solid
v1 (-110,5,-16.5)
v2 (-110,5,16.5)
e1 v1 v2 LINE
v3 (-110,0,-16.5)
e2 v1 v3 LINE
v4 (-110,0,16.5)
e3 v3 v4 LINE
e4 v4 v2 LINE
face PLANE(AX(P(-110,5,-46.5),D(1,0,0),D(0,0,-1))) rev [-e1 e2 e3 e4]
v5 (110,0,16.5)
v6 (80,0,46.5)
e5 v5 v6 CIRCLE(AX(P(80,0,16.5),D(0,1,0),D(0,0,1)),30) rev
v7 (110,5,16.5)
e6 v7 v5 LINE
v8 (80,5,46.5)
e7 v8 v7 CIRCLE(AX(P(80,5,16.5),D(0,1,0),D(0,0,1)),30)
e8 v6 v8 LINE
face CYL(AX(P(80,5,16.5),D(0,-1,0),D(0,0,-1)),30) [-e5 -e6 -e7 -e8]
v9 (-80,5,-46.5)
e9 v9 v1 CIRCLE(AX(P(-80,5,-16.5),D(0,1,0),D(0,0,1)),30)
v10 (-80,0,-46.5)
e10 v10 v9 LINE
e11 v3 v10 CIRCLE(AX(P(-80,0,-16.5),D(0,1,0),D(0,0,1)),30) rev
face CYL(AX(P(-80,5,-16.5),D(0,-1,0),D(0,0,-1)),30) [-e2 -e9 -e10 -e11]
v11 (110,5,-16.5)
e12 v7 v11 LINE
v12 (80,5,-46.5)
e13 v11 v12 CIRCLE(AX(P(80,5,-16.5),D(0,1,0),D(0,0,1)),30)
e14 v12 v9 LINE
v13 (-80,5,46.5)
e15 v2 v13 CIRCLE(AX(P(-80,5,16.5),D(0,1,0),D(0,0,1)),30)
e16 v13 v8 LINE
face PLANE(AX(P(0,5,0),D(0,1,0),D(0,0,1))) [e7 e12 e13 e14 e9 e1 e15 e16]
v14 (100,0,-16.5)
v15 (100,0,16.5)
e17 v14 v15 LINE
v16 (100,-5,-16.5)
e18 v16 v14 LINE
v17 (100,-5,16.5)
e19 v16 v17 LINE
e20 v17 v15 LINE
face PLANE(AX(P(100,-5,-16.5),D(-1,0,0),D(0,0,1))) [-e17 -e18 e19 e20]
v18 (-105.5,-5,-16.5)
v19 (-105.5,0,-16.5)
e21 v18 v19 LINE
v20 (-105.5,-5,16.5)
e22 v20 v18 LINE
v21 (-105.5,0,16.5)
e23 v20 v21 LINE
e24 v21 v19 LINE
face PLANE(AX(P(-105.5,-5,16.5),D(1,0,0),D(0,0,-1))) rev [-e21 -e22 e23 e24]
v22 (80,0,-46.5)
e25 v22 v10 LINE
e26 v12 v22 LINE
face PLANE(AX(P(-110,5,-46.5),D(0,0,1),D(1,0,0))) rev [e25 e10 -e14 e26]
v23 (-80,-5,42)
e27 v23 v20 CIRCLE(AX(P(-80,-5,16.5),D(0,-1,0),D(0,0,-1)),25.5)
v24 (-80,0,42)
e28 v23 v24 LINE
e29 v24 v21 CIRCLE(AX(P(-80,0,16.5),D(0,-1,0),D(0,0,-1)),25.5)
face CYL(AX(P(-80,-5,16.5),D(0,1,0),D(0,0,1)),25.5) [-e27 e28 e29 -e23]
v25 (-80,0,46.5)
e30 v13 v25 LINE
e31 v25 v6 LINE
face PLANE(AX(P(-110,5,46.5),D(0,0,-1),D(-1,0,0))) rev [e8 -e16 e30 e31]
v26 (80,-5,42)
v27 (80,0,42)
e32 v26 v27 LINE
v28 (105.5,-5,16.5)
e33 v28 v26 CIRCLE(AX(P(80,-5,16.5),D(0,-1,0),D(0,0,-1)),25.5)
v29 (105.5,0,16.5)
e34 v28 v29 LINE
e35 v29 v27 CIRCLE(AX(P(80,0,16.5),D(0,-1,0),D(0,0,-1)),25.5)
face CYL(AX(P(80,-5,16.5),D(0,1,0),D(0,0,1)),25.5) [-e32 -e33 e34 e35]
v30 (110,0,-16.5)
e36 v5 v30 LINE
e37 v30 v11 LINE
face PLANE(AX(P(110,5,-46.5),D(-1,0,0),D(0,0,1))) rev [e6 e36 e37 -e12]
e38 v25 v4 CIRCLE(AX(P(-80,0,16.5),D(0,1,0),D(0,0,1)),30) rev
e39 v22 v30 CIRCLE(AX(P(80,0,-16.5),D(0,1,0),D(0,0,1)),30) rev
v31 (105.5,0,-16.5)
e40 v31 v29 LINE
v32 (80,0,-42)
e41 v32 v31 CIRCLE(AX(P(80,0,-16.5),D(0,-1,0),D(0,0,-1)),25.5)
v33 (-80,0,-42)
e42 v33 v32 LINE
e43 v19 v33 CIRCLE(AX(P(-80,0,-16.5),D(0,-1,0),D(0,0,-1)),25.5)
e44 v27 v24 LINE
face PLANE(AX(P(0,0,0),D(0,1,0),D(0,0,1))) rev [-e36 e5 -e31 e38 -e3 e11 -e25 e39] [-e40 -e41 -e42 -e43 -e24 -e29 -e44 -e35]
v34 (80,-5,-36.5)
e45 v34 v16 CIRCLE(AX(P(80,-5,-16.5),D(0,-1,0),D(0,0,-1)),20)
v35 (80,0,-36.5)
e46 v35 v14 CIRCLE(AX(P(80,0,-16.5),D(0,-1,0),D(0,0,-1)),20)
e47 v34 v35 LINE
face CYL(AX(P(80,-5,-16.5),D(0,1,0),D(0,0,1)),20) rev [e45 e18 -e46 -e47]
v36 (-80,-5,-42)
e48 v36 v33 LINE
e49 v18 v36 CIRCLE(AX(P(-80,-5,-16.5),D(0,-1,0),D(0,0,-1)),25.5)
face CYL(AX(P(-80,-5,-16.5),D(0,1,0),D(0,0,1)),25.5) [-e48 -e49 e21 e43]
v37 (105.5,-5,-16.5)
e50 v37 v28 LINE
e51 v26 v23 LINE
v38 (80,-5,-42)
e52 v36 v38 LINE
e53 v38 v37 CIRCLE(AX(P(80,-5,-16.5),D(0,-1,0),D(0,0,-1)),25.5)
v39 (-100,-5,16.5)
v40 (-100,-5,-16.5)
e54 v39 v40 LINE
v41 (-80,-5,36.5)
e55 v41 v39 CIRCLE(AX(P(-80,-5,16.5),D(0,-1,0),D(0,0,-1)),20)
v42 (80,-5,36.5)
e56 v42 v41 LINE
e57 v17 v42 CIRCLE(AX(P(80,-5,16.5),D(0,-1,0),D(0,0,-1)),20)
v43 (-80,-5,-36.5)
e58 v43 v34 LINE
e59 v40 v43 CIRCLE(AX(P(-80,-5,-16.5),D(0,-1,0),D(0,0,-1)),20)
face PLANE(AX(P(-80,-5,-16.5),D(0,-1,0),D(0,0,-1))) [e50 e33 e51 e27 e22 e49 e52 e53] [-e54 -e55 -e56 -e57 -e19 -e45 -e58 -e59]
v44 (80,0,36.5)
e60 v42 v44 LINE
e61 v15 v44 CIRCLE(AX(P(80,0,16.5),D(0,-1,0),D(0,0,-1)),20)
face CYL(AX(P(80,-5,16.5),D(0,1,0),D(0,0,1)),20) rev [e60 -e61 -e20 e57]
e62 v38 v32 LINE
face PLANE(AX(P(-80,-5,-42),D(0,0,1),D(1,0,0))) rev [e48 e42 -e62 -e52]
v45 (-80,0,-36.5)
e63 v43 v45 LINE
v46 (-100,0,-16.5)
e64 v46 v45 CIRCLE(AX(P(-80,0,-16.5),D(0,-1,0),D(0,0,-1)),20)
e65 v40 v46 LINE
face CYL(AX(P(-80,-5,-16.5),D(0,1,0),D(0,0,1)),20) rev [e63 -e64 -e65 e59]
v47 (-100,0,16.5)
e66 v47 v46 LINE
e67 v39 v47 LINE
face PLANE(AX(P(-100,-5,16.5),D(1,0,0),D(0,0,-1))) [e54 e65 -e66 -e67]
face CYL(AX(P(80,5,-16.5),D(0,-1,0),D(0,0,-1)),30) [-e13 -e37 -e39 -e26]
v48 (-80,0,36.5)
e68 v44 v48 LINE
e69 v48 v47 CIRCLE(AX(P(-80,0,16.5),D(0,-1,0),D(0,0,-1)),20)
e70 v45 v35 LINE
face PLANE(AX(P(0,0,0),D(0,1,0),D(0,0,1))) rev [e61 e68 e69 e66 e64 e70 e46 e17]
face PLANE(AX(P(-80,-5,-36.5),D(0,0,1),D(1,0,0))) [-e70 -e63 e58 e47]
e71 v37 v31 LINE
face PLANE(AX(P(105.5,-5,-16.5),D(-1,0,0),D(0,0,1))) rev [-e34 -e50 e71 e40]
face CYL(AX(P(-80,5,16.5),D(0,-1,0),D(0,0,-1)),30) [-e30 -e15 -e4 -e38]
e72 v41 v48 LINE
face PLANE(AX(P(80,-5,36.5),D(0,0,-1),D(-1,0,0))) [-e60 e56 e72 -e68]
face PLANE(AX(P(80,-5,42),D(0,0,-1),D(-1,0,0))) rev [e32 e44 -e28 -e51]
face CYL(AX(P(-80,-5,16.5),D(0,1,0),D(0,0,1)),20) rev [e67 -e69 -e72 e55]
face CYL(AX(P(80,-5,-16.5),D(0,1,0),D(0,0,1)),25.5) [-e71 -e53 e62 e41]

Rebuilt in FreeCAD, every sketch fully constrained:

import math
import FreeCAD as App
import Part
import Sketcher
Q = App.Units.Quantity


def edges_at(feature, points):
    """Names of the edges that pass closest to the given points."""
    edges = feature.Shape.Edges
    near = lambda p: min(range(len(edges)), key=lambda i: edges[i].distToShape(Part.Vertex(*p))[0])
    return sorted({f"Edge{near(p) + 1}" for p in points})


def add_polygon(sketch, points):
    """Adds a closed chain of lines whose ends are joined by coincident constraints."""
    first, n = sketch.GeometryCount, len(points)
    for a, b in zip(points, points[1:] + points[:1]):
        sketch.addGeometry(Part.LineSegment(App.Vector(*a, 0), App.Vector(*b, 0)), False)
    for i in range(n):
        sketch.addConstraint(Sketcher.Constraint("Coincident", first + i, 2, first + (i + 1) % n, 1))

doc = App.newDocument("Part")
body = doc.addObject("PartDesign::Body", "Body")

sketch1 = doc.addObject("Sketcher::SketchObject", "Sketch")
body.addObject(sketch1)
sketch1.AttachmentSupport = (doc.XZ_Plane, [""])
sketch1.MapMode = "FlatFace"
add_polygon(sketch1, [(-110, -46), (-110, 46), (110, 46), (110, -46)])
sketch1.addConstraint(Sketcher.Constraint("Vertical", 0))
sketch1.addConstraint(Sketcher.Constraint("Horizontal", 1))
sketch1.addConstraint(Sketcher.Constraint("Vertical", 2))
sketch1.addConstraint(Sketcher.Constraint("Horizontal", 3))
sketch1.addConstraint(Sketcher.Constraint("Symmetric", 0, 2, 2, 2, -1, 1))
sketch1.addConstraint(Sketcher.Constraint("DistanceX", 1, 1, 1, 2, Q("220 mm")))
sketch1.addConstraint(Sketcher.Constraint("DistanceY", 0, 1, 0, 2, Q("93 mm")))
pad1 = doc.addObject("PartDesign::Pad", "Pad")
body.addObject(pad1)
pad1.Profile = sketch1
pad1.Length = 5
pad1.Reversed = True
doc.recompute()

fillet = doc.addObject("PartDesign::Fillet", "Fillet")
body.addObject(fillet)
fillet.Base = (pad1, edges_at(pad1, [
    (110, 2.5, 46.5),
    (-110, 2.5, 46.5),
    (-110, 2.5, -46.5),
    (110, 2.5, -46.5),
]))
fillet.Radius = 30

sketch2 = doc.addObject("Sketcher::SketchObject", "Sketch001")
body.addObject(sketch2)
sketch2.AttachmentSupport = (doc.XZ_Plane, [""])
sketch2.MapMode = "FlatFace"
sketch2.addGeometry(Part.LineSegment(App.Vector(-80, -42, 0), App.Vector(80, -42, 0)), False)
sketch2.addGeometry(Part.ArcOfCircle(Part.Circle(App.Vector(80, -16, 0), App.Vector(0, 0, 1), 26), math.radians(-90), math.radians(0)), False)
sketch2.addGeometry(Part.LineSegment(App.Vector(106, -16, 0), App.Vector(106, 16, 0)), False)
sketch2.addGeometry(Part.ArcOfCircle(Part.Circle(App.Vector(80, 16, 0), App.Vector(0, 0, 1), 26), math.radians(0), math.radians(90)), False)
sketch2.addGeometry(Part.LineSegment(App.Vector(80, 42, 0), App.Vector(-80, 42, 0)), False)
sketch2.addGeometry(Part.ArcOfCircle(Part.Circle(App.Vector(-80, 16, 0), App.Vector(0, 0, 1), 26), math.radians(90), math.radians(180)), False)
sketch2.addGeometry(Part.LineSegment(App.Vector(-106, 16, 0), App.Vector(-106, -16, 0)), False)
sketch2.addGeometry(Part.ArcOfCircle(Part.Circle(App.Vector(-80, -16, 0), App.Vector(0, 0, 1), 26), math.radians(-180), math.radians(-90)), False)
sketch2.addGeometry(Part.LineSegment(App.Vector(80, -36, 0), App.Vector(-80, -36, 0)), False)
sketch2.addGeometry(Part.ArcOfCircle(Part.Circle(App.Vector(-80, -17, 0), App.Vector(0, 0, 1), 20), math.radians(180), math.radians(270)), False)
sketch2.addGeometry(Part.LineSegment(App.Vector(-100, -16, 0), App.Vector(-100, 16, 0)), False)
sketch2.addGeometry(Part.ArcOfCircle(Part.Circle(App.Vector(-80, 17, 0), App.Vector(0, 0, 1), 20), math.radians(90), math.radians(180)), False)
sketch2.addGeometry(Part.LineSegment(App.Vector(-80, 36, 0), App.Vector(80, 36, 0)), False)
sketch2.addGeometry(Part.ArcOfCircle(Part.Circle(App.Vector(80, 17, 0), App.Vector(0, 0, 1), 20), math.radians(0), math.radians(90)), False)
sketch2.addGeometry(Part.LineSegment(App.Vector(100, 16, 0), App.Vector(100, -16, 0)), False)
sketch2.addGeometry(Part.ArcOfCircle(Part.Circle(App.Vector(80, -17, 0), App.Vector(0, 0, 1), 20), math.radians(-90), math.radians(0)), False)
sketch2.addConstraint(Sketcher.Constraint("Tangent", 0, 2, 1, 1))
sketch2.addConstraint(Sketcher.Constraint("Tangent", 1, 2, 2, 1))
sketch2.addConstraint(Sketcher.Constraint("Tangent", 2, 2, 3, 1))
sketch2.addConstraint(Sketcher.Constraint("Tangent", 3, 2, 4, 1))
sketch2.addConstraint(Sketcher.Constraint("Tangent", 4, 2, 5, 1))
sketch2.addConstraint(Sketcher.Constraint("Tangent", 5, 2, 6, 1))
sketch2.addConstraint(Sketcher.Constraint("Tangent", 6, 2, 7, 1))
sketch2.addConstraint(Sketcher.Constraint("Tangent", 7, 2, 0, 1))
sketch2.addConstraint(Sketcher.Constraint("Tangent", 8, 2, 9, 2))
sketch2.addConstraint(Sketcher.Constraint("Tangent", 9, 1, 10, 1))
sketch2.addConstraint(Sketcher.Constraint("Tangent", 10, 2, 11, 2))
sketch2.addConstraint(Sketcher.Constraint("Tangent", 11, 1, 12, 1))
sketch2.addConstraint(Sketcher.Constraint("Tangent", 12, 2, 13, 2))
sketch2.addConstraint(Sketcher.Constraint("Tangent", 13, 1, 14, 1))
sketch2.addConstraint(Sketcher.Constraint("Tangent", 14, 2, 15, 2))
sketch2.addConstraint(Sketcher.Constraint("Tangent", 15, 1, 8, 1))
sketch2.addConstraint(Sketcher.Constraint("Horizontal", 0))
sketch2.addConstraint(Sketcher.Constraint("Vertical", 2))
sketch2.addConstraint(Sketcher.Constraint("Horizontal", 4))
sketch2.addConstraint(Sketcher.Constraint("Vertical", 6))
sketch2.addConstraint(Sketcher.Constraint("Horizontal", 8))
sketch2.addConstraint(Sketcher.Constraint("Vertical", 10))
sketch2.addConstraint(Sketcher.Constraint("Horizontal", 12))
sketch2.addConstraint(Sketcher.Constraint("Vertical", 14))
sketch2.addConstraint(Sketcher.Constraint("Coincident", 9, 3, 7, 3))
sketch2.addConstraint(Sketcher.Constraint("Coincident", 11, 3, 5, 3))
sketch2.addConstraint(Sketcher.Constraint("Coincident", 13, 3, 3, 3))
sketch2.addConstraint(Sketcher.Constraint("Equal", 1, 3))
sketch2.addConstraint(Sketcher.Constraint("Equal", 3, 5))
sketch2.addConstraint(Sketcher.Constraint("Equal", 5, 7))
sketch2.addConstraint(Sketcher.Constraint("Equal", 13, 15))
sketch2.addConstraint(Sketcher.Constraint("Symmetric", 1, 3, 5, 3, -1, 1))
sketch2.addConstraint(Sketcher.Constraint("Radius", 9, Q("20 mm")))
sketch2.addConstraint(Sketcher.Constraint("Radius", 1, Q("25.5 mm")))
sketch2.addConstraint(Sketcher.Constraint("DistanceX", 0, 1, 0, 2, Q("160 mm")))
sketch2.addConstraint(Sketcher.Constraint("DistanceY", 2, 1, 2, 2, Q("33 mm")))
pad2 = doc.addObject("PartDesign::Pad", "Pad001")
body.addObject(pad2)
pad2.Profile = sketch2
pad2.Length = 5

doc.recompute()
